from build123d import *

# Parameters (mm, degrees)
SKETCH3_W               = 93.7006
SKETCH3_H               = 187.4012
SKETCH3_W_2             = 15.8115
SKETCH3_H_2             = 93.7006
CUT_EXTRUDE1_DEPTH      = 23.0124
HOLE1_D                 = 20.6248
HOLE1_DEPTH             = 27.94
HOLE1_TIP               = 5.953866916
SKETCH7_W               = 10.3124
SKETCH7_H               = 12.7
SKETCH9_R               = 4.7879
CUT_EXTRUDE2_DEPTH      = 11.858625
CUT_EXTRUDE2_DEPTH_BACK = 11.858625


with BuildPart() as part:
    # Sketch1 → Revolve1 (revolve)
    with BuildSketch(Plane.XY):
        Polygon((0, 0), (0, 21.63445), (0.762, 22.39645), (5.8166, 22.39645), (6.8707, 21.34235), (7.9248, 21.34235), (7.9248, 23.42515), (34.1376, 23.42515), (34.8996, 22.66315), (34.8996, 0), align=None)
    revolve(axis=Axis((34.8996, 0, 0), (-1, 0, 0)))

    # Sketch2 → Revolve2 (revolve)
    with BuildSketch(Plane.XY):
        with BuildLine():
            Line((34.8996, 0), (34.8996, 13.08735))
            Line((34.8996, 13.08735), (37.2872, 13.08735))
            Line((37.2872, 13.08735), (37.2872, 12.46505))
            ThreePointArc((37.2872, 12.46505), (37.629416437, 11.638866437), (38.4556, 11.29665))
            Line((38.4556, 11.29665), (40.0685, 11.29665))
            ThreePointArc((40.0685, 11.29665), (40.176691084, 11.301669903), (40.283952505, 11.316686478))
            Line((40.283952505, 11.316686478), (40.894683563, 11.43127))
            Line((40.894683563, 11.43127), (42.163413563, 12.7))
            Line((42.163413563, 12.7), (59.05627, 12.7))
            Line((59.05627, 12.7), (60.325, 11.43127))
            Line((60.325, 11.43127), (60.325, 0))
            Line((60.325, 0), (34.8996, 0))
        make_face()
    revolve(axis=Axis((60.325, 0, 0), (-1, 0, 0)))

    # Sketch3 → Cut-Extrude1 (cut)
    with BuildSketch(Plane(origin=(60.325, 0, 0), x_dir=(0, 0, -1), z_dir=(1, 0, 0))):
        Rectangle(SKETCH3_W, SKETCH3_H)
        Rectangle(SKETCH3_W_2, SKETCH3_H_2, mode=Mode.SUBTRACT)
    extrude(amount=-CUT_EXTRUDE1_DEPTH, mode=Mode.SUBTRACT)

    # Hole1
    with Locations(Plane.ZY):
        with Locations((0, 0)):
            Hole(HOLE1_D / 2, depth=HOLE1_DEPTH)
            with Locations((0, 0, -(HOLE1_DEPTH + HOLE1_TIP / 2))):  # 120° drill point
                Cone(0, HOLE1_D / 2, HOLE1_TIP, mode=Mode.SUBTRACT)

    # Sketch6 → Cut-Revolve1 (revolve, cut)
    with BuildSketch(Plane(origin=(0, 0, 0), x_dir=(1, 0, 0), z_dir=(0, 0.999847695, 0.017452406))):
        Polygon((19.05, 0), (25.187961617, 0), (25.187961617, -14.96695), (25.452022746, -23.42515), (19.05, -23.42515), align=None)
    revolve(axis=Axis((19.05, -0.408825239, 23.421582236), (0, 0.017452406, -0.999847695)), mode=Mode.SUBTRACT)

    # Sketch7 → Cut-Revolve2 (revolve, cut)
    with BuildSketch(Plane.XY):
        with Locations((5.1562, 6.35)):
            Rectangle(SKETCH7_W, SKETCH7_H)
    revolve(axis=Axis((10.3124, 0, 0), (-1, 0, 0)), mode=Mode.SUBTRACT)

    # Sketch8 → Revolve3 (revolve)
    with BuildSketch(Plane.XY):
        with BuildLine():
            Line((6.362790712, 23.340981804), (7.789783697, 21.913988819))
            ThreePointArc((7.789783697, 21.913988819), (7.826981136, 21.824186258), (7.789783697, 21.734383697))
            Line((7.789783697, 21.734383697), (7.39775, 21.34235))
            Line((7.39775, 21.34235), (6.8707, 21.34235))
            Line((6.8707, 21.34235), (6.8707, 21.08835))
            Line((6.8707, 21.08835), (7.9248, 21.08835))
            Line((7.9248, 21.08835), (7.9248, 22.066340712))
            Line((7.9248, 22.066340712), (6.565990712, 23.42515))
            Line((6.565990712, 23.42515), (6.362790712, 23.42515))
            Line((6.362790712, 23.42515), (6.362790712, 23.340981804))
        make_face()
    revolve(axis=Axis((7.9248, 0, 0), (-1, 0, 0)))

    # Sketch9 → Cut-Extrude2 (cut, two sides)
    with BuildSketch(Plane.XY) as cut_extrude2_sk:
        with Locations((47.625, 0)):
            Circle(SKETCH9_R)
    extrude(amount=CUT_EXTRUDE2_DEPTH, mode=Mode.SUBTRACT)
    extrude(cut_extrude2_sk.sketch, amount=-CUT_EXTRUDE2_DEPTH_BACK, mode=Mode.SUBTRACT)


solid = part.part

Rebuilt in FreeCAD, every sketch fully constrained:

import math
import FreeCAD as App
import Part
import Sketcher
from FreeCAD import Vector
Q = App.Units.Quantity

doc = App.newDocument("Part")
body = doc.addObject("PartDesign::Body", "Body")

sketch1 = body.newObject("Sketcher::SketchObject", "Sketch")
sketch1.AttachmentSupport = (doc.getObject("XY_Plane"), [""])
sketch1.MapMode = "FlatFace"
sketch1.addGeometry(Part.LineSegment(Vector(0, 21.6, 0), Vector(0, 0, 0)), False)
sketch1.addGeometry(Part.LineSegment(Vector(0, 0, 0), Vector(34.9, 0, 0)), False)
sketch1.addGeometry(Part.LineSegment(Vector(34.9, 0, 0), Vector(34.9, 22.7, 0)), False)
sketch1.addGeometry(Part.LineSegment(Vector(34.9, 22.7, 0), Vector(34.1, 23.4, 0)), False)
sketch1.addGeometry(Part.LineSegment(Vector(34.1, 23.4, 0), Vector(7.9, 23.4, 0)), False)
sketch1.addGeometry(Part.LineSegment(Vector(7.9, 23.4, 0), Vector(7.9, 21.3, 0)), False)
sketch1.addGeometry(Part.LineSegment(Vector(7.9, 21.3, 0), Vector(6.9, 21.3, 0)), False)
sketch1.addGeometry(Part.LineSegment(Vector(6.9, 21.3, 0), Vector(5.8, 22.4, 0)), False)
sketch1.addGeometry(Part.LineSegment(Vector(5.8, 22.4, 0), Vector(0.8, 22.4, 0)), False)
sketch1.addGeometry(Part.LineSegment(Vector(0.8, 22.4, 0), Vector(0, 21.6, 0)), False)
sketch1.addConstraint(Sketcher.Constraint("Coincident", 0, 2, 1, 1))
sketch1.addConstraint(Sketcher.Constraint("Coincident", 1, 2, 2, 1))
sketch1.addConstraint(Sketcher.Constraint("Coincident", 2, 2, 3, 1))
sketch1.addConstraint(Sketcher.Constraint("Coincident", 3, 2, 4, 1))
sketch1.addConstraint(Sketcher.Constraint("Coincident", 4, 2, 5, 1))
sketch1.addConstraint(Sketcher.Constraint("Coincident", 5, 2, 6, 1))
sketch1.addConstraint(Sketcher.Constraint("Coincident", 6, 2, 7, 1))
sketch1.addConstraint(Sketcher.Constraint("Coincident", 7, 2, 8, 1))
sketch1.addConstraint(Sketcher.Constraint("Coincident", 8, 2, 9, 1))
sketch1.addConstraint(Sketcher.Constraint("Coincident", 9, 2, 0, 1))
sketch1.addConstraint(Sketcher.Constraint("Vertical", 0))
sketch1.addConstraint(Sketcher.Constraint("Horizontal", 1))
sketch1.addConstraint(Sketcher.Constraint("Vertical", 2))
sketch1.addConstraint(Sketcher.Constraint("Horizontal", 4))
sketch1.addConstraint(Sketcher.Constraint("Vertical", 5))
sketch1.addConstraint(Sketcher.Constraint("Horizontal", 6))
sketch1.addConstraint(Sketcher.Constraint("Horizontal", 8))
sketch1.addConstraint(Sketcher.Constraint("Coincident", 0, 2, -1, 1))
sketch1.addConstraint(Sketcher.Constraint("Parallel", 3, 7))
sketch1.addConstraint(Sketcher.Constraint("Perpendicular", 7, 9))
sketch1.addConstraint(Sketcher.Constraint("Equal", 3, 9))
sketch1.addConstraint(Sketcher.Constraint("Angle", 3, Q("135 deg")))
sketch1.addConstraint(Sketcher.Constraint("DistanceX", 1, 1, 1, 2, Q("1.374 in")))
sketch1.addConstraint(Sketcher.Constraint("DistanceX", 4, 2, 4, 1, Q("1.032 in")))
sketch1.addConstraint(Sketcher.Constraint("DistanceX", 8, 2, 8, 1, Q("0.199 in")))
sketch1.addConstraint(Sketcher.Constraint("DistanceY", 5, 2, 5, 1, Q("0.082 in")))
sketch1.addConstraint(Sketcher.Constraint("DistanceX", -1, 1, 8, 2, Q("0.03 in")))
sketch1.addConstraint(Sketcher.Constraint("DistanceX", 6, 2, 6, 1, Q("0.0415 in")))
sketch1.addConstraint(Sketcher.Constraint("DistanceY", 0, 2, 0, 1, 21.63445))
revolution = body.newObject("PartDesign::Revolution", "Revolution")
revolution.Profile = sketch1
revolution.ReferenceAxis = (sketch1, ["H_Axis"])
revolution.Angle = 360

sketch2 = body.newObject("Sketcher::SketchObject", "Sketch001")
sketch2.AttachmentSupport = (doc.getObject("XY_Plane"), [""])
sketch2.MapMode = "FlatFace"
sketch2.addGeometry(Part.LineSegment(Vector(34.9, 13.09, 0), Vector(34.9, 0, 0)), False)
sketch2.addGeometry(Part.LineSegment(Vector(34.9, 0, 0), Vector(60.33, 0, 0)), False)
sketch2.addGeometry(Part.LineSegment(Vector(60.33, 0, 0), Vector(60.33, 11.43, 0)), False)
sketch2.addGeometry(Part.LineSegment(Vector(60.33, 11.43, 0), Vector(59.06, 12.7, 0)), False)
sketch2.addGeometry(Part.LineSegment(Vector(59.06, 12.7, 0), Vector(42.16, 12.7, 0)), False)
sketch2.addGeometry(Part.LineSegment(Vector(42.16, 12.7, 0), Vector(40.89, 11.43, 0)), False)
sketch2.addGeometry(Part.LineSegment(Vector(40.89, 11.43, 0), Vector(40.28, 11.32, 0)), False)
sketch2.addGeometry(Part.ArcOfCircle(Part.Circle(Vector(40.07, 12.47, 0), Vector(0, 0, 1), 1.17), math.radians(-90), math.radians(-79.37)), False)
sketch2.addGeometry(Part.LineSegment(Vector(40.07, 11.3, 0), Vector(38.46, 11.3, 0)), False)
sketch2.addGeometry(Part.ArcOfCircle(Part.Circle(Vector(38.46, 12.47, 0), Vector(0, 0, 1), 1.17), math.radians(180), math.radians(270)), False)
sketch2.addGeometry(Part.LineSegment(Vector(37.29, 12.47, 0), Vector(37.29, 13.09, 0)), False)
sketch2.addGeometry(Part.LineSegment(Vector(37.29, 13.09, 0), Vector(34.9, 13.09, 0)), False)
sketch2.addConstraint(Sketcher.Constraint("Coincident", 0, 2, 1, 1))
sketch2.addConstraint(Sketcher.Constraint("Coincident", 1, 2, 2, 1))
sketch2.addConstraint(Sketcher.Constraint("Coincident", 2, 2, 3, 1))
sketch2.addConstraint(Sketcher.Constraint("Coincident", 3, 2, 4, 1))
sketch2.addConstraint(Sketcher.Constraint("Coincident", 4, 2, 5, 1))
sketch2.addConstraint(Sketcher.Constraint("Coincident", 5, 2, 6, 1))
sketch2.addConstraint(Sketcher.Constraint("Tangent", 6, 2, 7, 2))
sketch2.addConstraint(Sketcher.Constraint("Tangent", 7, 1, 8, 1))
sketch2.addConstraint(Sketcher.Constraint("Tangent", 8, 2, 9, 2))
sketch2.addConstraint(Sketcher.Constraint("Tangent", 9, 1, 10, 1))
sketch2.addConstraint(Sketcher.Constraint("Coincident", 10, 2, 11, 1))
sketch2.addConstraint(Sketcher.Constraint("Coincident", 11, 2, 0, 1))
sketch2.addConstraint(Sketcher.Constraint("Vertical", 0))
sketch2.addConstraint(Sketcher.Constraint("Horizontal", 1))
sketch2.addConstraint(Sketcher.Constraint("Vertical", 2))
sketch2.addConstraint(Sketcher.Constraint("Horizontal", 4))
sketch2.addConstraint(Sketcher.Constraint("Horizontal", 8))
sketch2.addConstraint(Sketcher.Constraint("Vertical", 10))
sketch2.addConstraint(Sketcher.Constraint("Horizontal", 11))
sketch2.addConstraint(Sketcher.Constraint("Equal", 7, 9))
sketch2.addConstraint(Sketcher.Constraint("PointOnObject", 0, 2, -1))
sketch2.addConstraint(Sketcher.Constraint("Perpendicular", 3, 5))
sketch2.addConstraint(Sketcher.Constraint("Horizontal", 2, 2, 5, 2))
sketch2.addConstraint(Sketcher.Constraint("Equal", 3, 5))
sketch2.addConstraint(Sketcher.Constraint("Radius", 7, Q("0.046 in")))
sketch2.addConstraint(Sketcher.Constraint("DistanceY", -1, 1, 3, 2, Q("0.5 in")))
sketch2.addConstraint(Sketcher.Constraint("DistanceX", 1, 1, 1, 2, Q("1.001 in")))
sketch2.addConstraint(Sketcher.Constraint("DistanceX", 11, 2, 11, 1, Q("0.094 in")))
sketch2.addConstraint(Sketcher.Constraint("DistanceX", 8, 2, 8, 1, Q("0.0635 in")))
sketch2.addConstraint(Sketcher.Constraint("DistanceY", 10, 1, 10, 2, Q("0.0245 in")))
sketch2.addConstraint(Sketcher.Constraint("DistanceX", -1, 1, 9, 3, Q("1.514 in")))
sketch2.addConstraint(Sketcher.Constraint("DistanceY", 2, 2, 7, 3, Q("0.0407 in")))
sketch2.addConstraint(Sketcher.Constraint("DistanceY", 0, 2, 0, 1, 13.08735))
sketch2.addConstraint(Sketcher.Constraint("DistanceX", 4, 2, 4, 1, 16.892856))
revolution2 = body.newObject("PartDesign::Revolution", "Revolution001")
revolution2.Profile = sketch2
revolution2.ReferenceAxis = (sketch2, ["H_Axis"])
revolution2.Angle = 360

sketch3 = body.newObject("Sketcher::SketchObject", "Sketch002")
sketch3.AttachmentSupport = (doc.getObject("YZ_Plane"), [""])
sketch3.MapMode = "FlatFace"
sketch3.AttachmentOffset = App.Placement(Vector(0, 0, 2.375 * 25.4), App.Rotation())
sketch3.addGeometry(Part.LineSegment(Vector(94, 47, 0), Vector(-94, 47, 0)), False)
sketch3.addGeometry(Part.LineSegment(Vector(-94, 47, 0), Vector(-94, -47, 0)), False)
sketch3.addGeometry(Part.LineSegment(Vector(-94, -47, 0), Vector(94, -47, 0)), False)
sketch3.addGeometry(Part.LineSegment(Vector(94, -47, 0), Vector(94, 47, 0)), False)
sketch3.addGeometry(Part.LineSegment(Vector(-47, -8, 0), Vector(-47, 8, 0)), False)
sketch3.addGeometry(Part.LineSegment(Vector(-47, 8, 0), Vector(47, 8, 0)), False)
sketch3.addGeometry(Part.LineSegment(Vector(47, 8, 0), Vector(47, -8, 0)), False)
sketch3.addGeometry(Part.LineSegment(Vector(47, -8, 0), Vector(-47, -8, 0)), False)
sketch3.addConstraint(Sketcher.Constraint("Coincident", 0, 2, 1, 1))
sketch3.addConstraint(Sketcher.Constraint("Coincident", 1, 2, 2, 1))
sketch3.addConstraint(Sketcher.Constraint("Coincident", 2, 2, 3, 1))
sketch3.addConstraint(Sketcher.Constraint("Coincident", 3, 2, 0, 1))
sketch3.addConstraint(Sketcher.Constraint("Coincident", 4, 2, 5, 1))
sketch3.addConstraint(Sketcher.Constraint("Coincident", 5, 2, 6, 1))
sketch3.addConstraint(Sketcher.Constraint("Coincident", 6, 2, 7, 1))
sketch3.addConstraint(Sketcher.Constraint("Coincident", 7, 2, 4, 1))
sketch3.addConstraint(Sketcher.Constraint("Horizontal", 0))
sketch3.addConstraint(Sketcher.Constraint("Vertical", 1))
sketch3.addConstraint(Sketcher.Constraint("Horizontal", 2))
sketch3.addConstraint(Sketcher.Constraint("Vertical", 3))
sketch3.addConstraint(Sketcher.Constraint("Vertical", 4))
sketch3.addConstraint(Sketcher.Constraint("Horizontal", 5))
sketch3.addConstraint(Sketcher.Constraint("Vertical", 6))
sketch3.addConstraint(Sketcher.Constraint("Horizontal", 7))
sketch3.addConstraint(Sketcher.Constraint("Symmetric", 0, 2, 2, 2, -1, 1))
sketch3.addConstraint(Sketcher.Constraint("Symmetric", 4, 2, 6, 2, -1, 1))
sketch3.addConstraint(Sketcher.Constraint("Equal", 7, 1))
sketch3.addConstraint(Sketcher.Constraint("DistanceX", 0, 2, 0, 1, Q("7.378 in")))
sketch3.addConstraint(Sketcher.Constraint("DistanceX", 5, 1, 5, 2, Q("3.689 in")))
sketch3.addConstraint(Sketcher.Constraint("DistanceY", 4, 1, 4, 2, Q("0.6225 in")))
pocket1 = body.newObject("PartDesign::Pocket", "Pocket")
pocket1.Profile = sketch3
pocket1.Length = Q("0.906 in")

sketch4 = body.newObject("Sketcher::SketchObject", "Sketch003")
sketch4.AttachmentSupport = (doc.getObject("YZ_Plane"), [""])
sketch4.MapMode = "FlatFace"
sketch4.addGeometry(Part.Circle(Vector(0, 0, 0), Vector(0, 0, 1), 10), False)
sketch4.addConstraint(Sketcher.Constraint("Coincident", 0, 3, -1, 1))
sketch4.addConstraint(Sketcher.Constraint("Diameter", 0, Q("0.812 in")))
doc.recompute()
hole = body.newObject("PartDesign::Hole", "Hole")
hole.Profile = sketch4
hole.ThreadType = "None"
hole.Diameter = Q("0.812 in")
hole.DepthType = "Dimension"
hole.Depth = Q("1.1 in")
hole.DrillPoint = "Angled"
hole.DrillPointAngle = 120
hole.Reversed = True

sketch5 = body.newObject("Sketcher::SketchObject", "Sketch004")
sketch5.Placement = App.Placement(Vector(0, 0, 0), App.Rotation(Vector(1, 0, 0), Vector(0, 0.017452406, -0.999847695), Vector(0, 0.999847695, 0.017452406), "ZXY"))
sketch5.addGeometry(Part.LineSegment(Vector(25.187962, 0, 0), Vector(19.05, 0, 0)), False)
sketch5.addGeometry(Part.LineSegment(Vector(19.05, 0, 0), Vector(19.05, -23.42515, 0)), False)
sketch5.addGeometry(Part.LineSegment(Vector(19.05, -23.42515, 0), Vector(25.452023, -23.42515, 0)), False)
sketch5.addGeometry(Part.LineSegment(Vector(25.452023, -23.42515, 0), Vector(25.187962, -14.96695, 0)), False)
sketch5.addGeometry(Part.LineSegment(Vector(25.187962, -14.96695, 0), Vector(25.187962, 0, 0)), False)
sketch5.addGeometry(Part.LineSegment(Vector(19.05, -23.42515, 0), Vector(19.05, 0, 0)), True)
sketch5.addConstraint(Sketcher.Constraint("Coincident", 0, 2, 1, 1))
sketch5.addConstraint(Sketcher.Constraint("Coincident", 1, 2, 2, 1))
sketch5.addConstraint(Sketcher.Constraint("Coincident", 2, 2, 3, 1))
sketch5.addConstraint(Sketcher.Constraint("Coincident", 3, 2, 4, 1))
sketch5.addConstraint(Sketcher.Constraint("Coincident", 4, 2, 0, 1))
sketch5.addConstraint(Sketcher.Constraint("Horizontal", 0))
sketch5.addConstraint(Sketcher.Constraint("Vertical", 1))
sketch5.addConstraint(Sketcher.Constraint("Horizontal", 2))
sketch5.addConstraint(Sketcher.Constraint("Vertical", 4))
sketch5.addConstraint(Sketcher.Constraint("Vertical", 5))
sketch5.addConstraint(Sketcher.Constraint("Coincident", 5, 1, 1, 2))
sketch5.addConstraint(Sketcher.Constraint("PointOnObject", 0, 2, -1))
sketch5.addConstraint(Sketcher.Constraint("PointOnObject", 5, 2, -1))
sketch5.addConstraint(Sketcher.Constraint("DistanceX", -1, 1, 0, 2, Q("0.75 in")))
sketch5.addConstraint(Sketcher.Constraint("DistanceY", 2, 2, 3, 2, Q("0.333 in")))
sketch5.addConstraint(Sketcher.Constraint("DistanceX", 0, 2, 0, 1, 6.137962))
sketch5.addConstraint(Sketcher.Constraint("DistanceY", 1, 2, 1, 1, 23.42515))
sketch5.addConstraint(Sketcher.Constraint("Distance", 3, 8.462321))
groove = body.newObject("PartDesign::Groove", "Groove")
groove.Profile = sketch5
groove.ReferenceAxis = (sketch5, ["Axis0"])
groove.Angle = 360

sketch6 = body.newObject("Sketcher::SketchObject", "Sketch005")
sketch6.AttachmentSupport = (doc.getObject("XY_Plane"), [""])
sketch6.MapMode = "FlatFace"
sketch6.addGeometry(Part.LineSegment(Vector(0, 13, 0), Vector(0, 0, 0)), False)
sketch6.addGeometry(Part.LineSegment(Vector(0, 0, 0), Vector(10, 0, 0)), False)
sketch6.addGeometry(Part.LineSegment(Vector(10, 0, 0), Vector(10, 13, 0)), False)
sketch6.addGeometry(Part.LineSegment(Vector(10, 13, 0), Vector(0, 13, 0)), False)
sketch6.addConstraint(Sketcher.Constraint("Coincident", 0, 2, 1, 1))
sketch6.addConstraint(Sketcher.Constraint("Coincident", 1, 2, 2, 1))
sketch6.addConstraint(Sketcher.Constraint("Coincident", 2, 2, 3, 1))
sketch6.addConstraint(Sketcher.Constraint("Coincident", 3, 2, 0, 1))
sketch6.addConstraint(Sketcher.Constraint("Vertical", 0))
sketch6.addConstraint(Sketcher.Constraint("Horizontal", 1))
sketch6.addConstraint(Sketcher.Constraint("Vertical", 2))
sketch6.addConstraint(Sketcher.Constraint("Horizontal", 3))
sketch6.addConstraint(Sketcher.Constraint("Coincident", 0, 2, -1, 1))
sketch6.addConstraint(Sketcher.Constraint("DistanceY", 0, 2, 0, 1, Q("0.5 in")))
sketch6.addConstraint(Sketcher.Constraint("DistanceX", 1, 1, 1, 2, Q("0.406 in")))
groove2 = body.newObject("PartDesign::Groove", "Groove001")
groove2.Profile = sketch6
groove2.ReferenceAxis = (sketch6, ["H_Axis"])
groove2.Angle = 360

sketch7 = body.newObject("Sketcher::SketchObject", "Sketch006")
sketch7.AttachmentSupport = (doc.getObject("XY_Plane"), [""])
sketch7.MapMode = "FlatFace"
sketch7.addGeometry(Part.LineSegment(Vector(6.36, 23.34, 0), Vector(7.79, 21.91, 0)), False)
sketch7.addGeometry(Part.ArcOfCircle(Part.Circle(Vector(7.7, 21.82, 0), Vector(0, 0, 1), 0.13), math.radians(-45), math.radians(45)), False)
sketch7.addGeometry(Part.LineSegment(Vector(7.79, 21.73, 0), Vector(7.4, 21.34, 0)), False)
sketch7.addGeometry(Part.LineSegment(Vector(7.4, 21.34, 0), Vector(6.87, 21.34, 0)), False)
sketch7.addGeometry(Part.LineSegment(Vector(6.87, 21.34, 0), Vector(6.87, 21.09, 0)), False)
sketch7.addGeometry(Part.LineSegment(Vector(6.87, 21.09, 0), Vector(7.92, 21.09, 0)), False)
sketch7.addGeometry(Part.LineSegment(Vector(7.92, 21.09, 0), Vector(7.92, 22.07, 0)), False)
sketch7.addGeometry(Part.LineSegment(Vector(7.92, 22.07, 0), Vector(6.57, 23.43, 0)), False)
sketch7.addGeometry(Part.LineSegment(Vector(6.57, 23.43, 0), Vector(6.36, 23.43, 0)), False)
sketch7.addGeometry(Part.LineSegment(Vector(6.36, 23.43, 0), Vector(6.36, 23.34, 0)), False)
sketch7.addConstraint(Sketcher.Constraint("Tangent", 0, 2, 1, 2))
sketch7.addConstraint(Sketcher.Constraint("Tangent", 1, 1, 2, 1))
sketch7.addConstraint(Sketcher.Constraint("Coincident", 2, 2, 3, 1))
sketch7.addConstraint(Sketcher.Constraint("Coincident", 3, 2, 4, 1))
sketch7.addConstraint(Sketcher.Constraint("Coincident", 4, 2, 5, 1))
sketch7.addConstraint(Sketcher.Constraint("Coincident", 5, 2, 6, 1))
sketch7.addConstraint(Sketcher.Constraint("Coincident", 6, 2, 7, 1))
sketch7.addConstraint(Sketcher.Constraint("Coincident", 7, 2, 8, 1))
sketch7.addConstraint(Sketcher.Constraint("Coincident", 8, 2, 9, 1))
sketch7.addConstraint(Sketcher.Constraint("Coincident", 9, 2, 0, 1))
sketch7.addConstraint(Sketcher.Constraint("Horizontal", 3))
sketch7.addConstraint(Sketcher.Constraint("Vertical", 4))
sketch7.addConstraint(Sketcher.Constraint("Horizontal", 5))
sketch7.addConstraint(Sketcher.Constraint("Vertical", 6))
sketch7.addConstraint(Sketcher.Constraint("Horizontal", 8))
sketch7.addConstraint(Sketcher.Constraint("Vertical", 9))
sketch7.addConstraint(Sketcher.Constraint("Perpendicular", 0, 2))
sketch7.addConstraint(Sketcher.Constraint("Perpendicular", 2, 7))
sketch7.addConstraint(Sketcher.Constraint("Vertical", 0, 2, 1, 1))
sketch7.addConstraint(Sketcher.Constraint("Radius", 1, Q("0.005 in")))
sketch7.addConstraint(Sketcher.Constraint("DistanceY", 4, 2, 4, 1, Q("0.01 in")))
sketch7.addConstraint(Sketcher.Constraint("DistanceX", 8, 2, 8, 1, Q("0.008 in")))
sketch7.addConstraint(Sketcher.Constraint("DistanceX", 5, 1, 5, 2, Q("0.0415 in")))
sketch7.addConstraint(Sketcher.Constraint("DistanceX", -1, 1, 5, 2, Q("0.312 in")))
sketch7.addConstraint(Sketcher.Constraint("DistanceY", 3, 2, 7, 2, Q("0.082 in")))
sketch7.addConstraint(Sketcher.Constraint("DistanceX", 3, 2, 3, 1, 0.52705))
sketch7.addConstraint(Sketcher.Constraint("DistanceY", 6, 1, 6, 2, 0.977991))
sketch7.addConstraint(Sketcher.Constraint("DistanceY", 9, 2, 9, 1, 0.084168))
sketch7.addConstraint(Sketcher.Constraint("DistanceY", -1, 1, 0, 2, 21.913989))
revolution3 = body.newObject("PartDesign::Revolution", "Revolution002")
revolution3.Profile = sketch7
revolution3.ReferenceAxis = (sketch7, ["H_Axis"])
revolution3.Angle = 360

sketch8 = body.newObject("Sketcher::SketchObject", "Sketch007")
sketch8.AttachmentSupport = (doc.getObject("XY_Plane"), [""])
sketch8.MapMode = "FlatFace"
sketch8.addGeometry(Part.Circle(Vector(47.6, 0, 0), Vector(0, 0, 1), 4.8), False)
sketch8.addConstraint(Sketcher.Constraint("PointOnObject", 0, 3, -1))
sketch8.addConstraint(Sketcher.Constraint("Diameter", 0, Q("0.377 in")))
sketch8.addConstraint(Sketcher.Constraint("DistanceX", -1, 1, 0, 3, Q("1.875 in")))
pocket2 = body.newObject("PartDesign::Pocket", "Pocket001")
pocket2.Profile = sketch8
pocket2.Type = "ThroughAll"
pocket2.Midplane = True

doc.recompute()
